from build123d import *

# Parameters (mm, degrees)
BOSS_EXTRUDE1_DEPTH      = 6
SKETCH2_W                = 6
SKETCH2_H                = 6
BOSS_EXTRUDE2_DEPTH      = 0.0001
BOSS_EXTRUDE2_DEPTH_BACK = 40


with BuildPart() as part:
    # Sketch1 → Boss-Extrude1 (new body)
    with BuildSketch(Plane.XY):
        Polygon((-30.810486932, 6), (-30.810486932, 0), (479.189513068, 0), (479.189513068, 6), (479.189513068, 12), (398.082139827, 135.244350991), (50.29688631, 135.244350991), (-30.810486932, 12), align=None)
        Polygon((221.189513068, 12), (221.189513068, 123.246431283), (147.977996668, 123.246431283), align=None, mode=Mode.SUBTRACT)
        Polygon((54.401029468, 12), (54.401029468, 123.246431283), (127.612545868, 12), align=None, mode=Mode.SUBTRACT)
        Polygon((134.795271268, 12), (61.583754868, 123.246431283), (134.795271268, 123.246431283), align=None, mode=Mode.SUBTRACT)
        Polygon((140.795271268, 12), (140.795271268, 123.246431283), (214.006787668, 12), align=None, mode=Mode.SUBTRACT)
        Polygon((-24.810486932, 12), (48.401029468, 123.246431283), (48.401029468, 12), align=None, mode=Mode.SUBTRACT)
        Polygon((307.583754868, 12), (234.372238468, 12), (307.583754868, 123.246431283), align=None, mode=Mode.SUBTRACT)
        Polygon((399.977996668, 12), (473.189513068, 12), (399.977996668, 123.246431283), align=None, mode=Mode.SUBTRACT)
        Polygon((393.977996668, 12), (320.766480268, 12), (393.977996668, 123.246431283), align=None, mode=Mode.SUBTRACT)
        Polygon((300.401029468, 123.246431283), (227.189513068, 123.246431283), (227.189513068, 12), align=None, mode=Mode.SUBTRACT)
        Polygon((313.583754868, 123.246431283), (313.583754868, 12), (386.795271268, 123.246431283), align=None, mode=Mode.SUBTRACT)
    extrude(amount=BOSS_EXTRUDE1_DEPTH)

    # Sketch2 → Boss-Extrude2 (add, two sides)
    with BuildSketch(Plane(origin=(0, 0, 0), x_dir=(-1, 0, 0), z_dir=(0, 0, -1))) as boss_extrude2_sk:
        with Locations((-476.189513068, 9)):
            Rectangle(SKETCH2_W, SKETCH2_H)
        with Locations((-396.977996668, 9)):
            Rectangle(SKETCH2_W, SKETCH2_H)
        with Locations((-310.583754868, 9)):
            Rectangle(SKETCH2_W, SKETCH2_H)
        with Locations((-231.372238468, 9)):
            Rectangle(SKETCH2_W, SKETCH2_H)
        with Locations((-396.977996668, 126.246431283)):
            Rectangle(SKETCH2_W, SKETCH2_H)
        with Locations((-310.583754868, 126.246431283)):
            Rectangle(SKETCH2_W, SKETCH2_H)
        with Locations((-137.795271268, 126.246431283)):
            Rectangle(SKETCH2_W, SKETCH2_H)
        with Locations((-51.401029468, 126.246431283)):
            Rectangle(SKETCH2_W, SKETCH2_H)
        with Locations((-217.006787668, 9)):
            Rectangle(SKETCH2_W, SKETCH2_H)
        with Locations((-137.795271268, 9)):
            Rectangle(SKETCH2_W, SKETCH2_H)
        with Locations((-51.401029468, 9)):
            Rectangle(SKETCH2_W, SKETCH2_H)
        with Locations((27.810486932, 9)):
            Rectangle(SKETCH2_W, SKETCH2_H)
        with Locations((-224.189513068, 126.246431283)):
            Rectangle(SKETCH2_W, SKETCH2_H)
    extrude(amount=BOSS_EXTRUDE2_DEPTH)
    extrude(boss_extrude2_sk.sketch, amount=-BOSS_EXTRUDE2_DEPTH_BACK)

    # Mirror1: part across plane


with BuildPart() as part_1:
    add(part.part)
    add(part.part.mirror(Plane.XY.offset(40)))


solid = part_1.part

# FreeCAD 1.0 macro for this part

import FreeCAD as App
import Part
import Sketcher
from FreeCAD import Vector
Q = App.Units.Quantity

doc = App.newDocument("Part")
body = doc.addObject("PartDesign::Body", "Body")

# Sketch on XY plane
sketch1 = body.newObject("Sketcher::SketchObject", "Sketch")
sketch1.AttachmentSupport = (doc.getObject("XY_Plane"), [""])
sketch1.MapMode = "FlatFace"
sketch1.addGeometry([
    Part.LineSegment(Vector(-31, 0, 0), Vector(479, 0, 0)),  # 0
    Part.LineSegment(Vector(479, 0, 0), Vector(479, 12, 0)),  # 1
    Part.LineSegment(Vector(479, 12, 0), Vector(398, 135, 0)),  # 2
    Part.LineSegment(Vector(398, 135, 0), Vector(50, 135, 0)),  # 3
    Part.LineSegment(Vector(50, 135, 0), Vector(-31, 12, 0)),  # 4
    Part.LineSegment(Vector(-31, 12, 0), Vector(-31, 0, 0)),  # 5
    Part.LineSegment(Vector(48, 12, 0), Vector(-25, 12, 0)),  # 6
    Part.LineSegment(Vector(-25, 12, 0), Vector(48, 123, 0)),  # 7
    Part.LineSegment(Vector(48, 123, 0), Vector(48, 12, 0)),  # 8
    Part.LineSegment(Vector(128, 12, 0), Vector(54, 12, 0)),  # 9
    Part.LineSegment(Vector(54, 12, 0), Vector(54, 123, 0)),  # 10
    Part.LineSegment(Vector(54, 123, 0), Vector(128, 12, 0)),  # 11
    Part.LineSegment(Vector(135, 123, 0), Vector(135, 12, 0)),  # 12
    Part.LineSegment(Vector(135, 12, 0), Vector(62, 123, 0)),  # 13
    Part.LineSegment(Vector(62, 123, 0), Vector(135, 123, 0)),  # 14
    Part.LineSegment(Vector(214, 12, 0), Vector(141, 12, 0)),  # 15
    Part.LineSegment(Vector(141, 12, 0), Vector(141, 123, 0)),  # 16
    Part.LineSegment(Vector(141, 123, 0), Vector(214, 12, 0)),  # 17
    Part.LineSegment(Vector(221, 123, 0), Vector(221, 12, 0)),  # 18
    Part.LineSegment(Vector(221, 12, 0), Vector(148, 123, 0)),  # 19
    Part.LineSegment(Vector(148, 123, 0), Vector(221, 123, 0)),  # 20
    Part.LineSegment(Vector(227, 123, 0), Vector(300, 123, 0)),  # 21
    Part.LineSegment(Vector(300, 123, 0), Vector(227, 12, 0)),  # 22
    Part.LineSegment(Vector(227, 12, 0), Vector(227, 123, 0)),  # 23
    Part.LineSegment(Vector(314, 12, 0), Vector(314, 123, 0)),  # 24
    Part.LineSegment(Vector(314, 123, 0), Vector(387, 123, 0)),  # 25
    Part.LineSegment(Vector(387, 123, 0), Vector(314, 12, 0)),  # 26
    Part.LineSegment(Vector(394, 123, 0), Vector(394, 12, 0)),  # 27
    Part.LineSegment(Vector(394, 12, 0), Vector(321, 12, 0)),  # 28
    Part.LineSegment(Vector(321, 12, 0), Vector(394, 123, 0)),  # 29
    Part.LineSegment(Vector(473, 12, 0), Vector(400, 12, 0)),  # 30
    Part.LineSegment(Vector(400, 12, 0), Vector(400, 123, 0)),  # 31
    Part.LineSegment(Vector(400, 123, 0), Vector(473, 12, 0)),  # 32
    Part.LineSegment(Vector(308, 123, 0), Vector(308, 12, 0)),  # 33
    Part.LineSegment(Vector(308, 12, 0), Vector(234, 12, 0)),  # 34
    Part.LineSegment(Vector(234, 12, 0), Vector(308, 123, 0)),  # 35
], False)
sketch1.addConstraint([
    Sketcher.Constraint("Coincident", 0, 2, 1, 1),
    Sketcher.Constraint("Coincident", 1, 2, 2, 1),
    Sketcher.Constraint("Coincident", 2, 2, 3, 1),
    Sketcher.Constraint("Coincident", 3, 2, 4, 1),
    Sketcher.Constraint("Coincident", 4, 2, 5, 1),
    Sketcher.Constraint("Coincident", 5, 2, 0, 1),
    Sketcher.Constraint("Coincident", 6, 2, 7, 1),
    Sketcher.Constraint("Coincident", 7, 2, 8, 1),
    Sketcher.Constraint("Coincident", 8, 2, 6, 1),
    Sketcher.Constraint("Coincident", 9, 2, 10, 1),
    Sketcher.Constraint("Coincident", 10, 2, 11, 1),
    Sketcher.Constraint("Coincident", 11, 2, 9, 1),
    Sketcher.Constraint("Coincident", 12, 2, 13, 1),
    Sketcher.Constraint("Coincident", 13, 2, 14, 1),
    Sketcher.Constraint("Coincident", 14, 2, 12, 1),
    Sketcher.Constraint("Coincident", 15, 2, 16, 1),
    Sketcher.Constraint("Coincident", 16, 2, 17, 1),
    Sketcher.Constraint("Coincident", 17, 2, 15, 1),
    Sketcher.Constraint("Coincident", 18, 2, 19, 1),
    Sketcher.Constraint("Coincident", 19, 2, 20, 1),
    Sketcher.Constraint("Coincident", 20, 2, 18, 1),
    Sketcher.Constraint("Coincident", 21, 2, 22, 1),
    Sketcher.Constraint("Coincident", 22, 2, 23, 1),
    Sketcher.Constraint("Coincident", 23, 2, 21, 1),
    Sketcher.Constraint("Coincident", 24, 2, 25, 1),
    Sketcher.Constraint("Coincident", 25, 2, 26, 1),
    Sketcher.Constraint("Coincident", 26, 2, 24, 1),
    Sketcher.Constraint("Coincident", 27, 2, 28, 1),
    Sketcher.Constraint("Coincident", 28, 2, 29, 1),
    Sketcher.Constraint("Coincident", 29, 2, 27, 1),
    Sketcher.Constraint("Coincident", 30, 2, 31, 1),
    Sketcher.Constraint("Coincident", 31, 2, 32, 1),
    Sketcher.Constraint("Coincident", 32, 2, 30, 1),
    Sketcher.Constraint("Coincident", 33, 2, 34, 1),
    Sketcher.Constraint("Coincident", 34, 2, 35, 1),
    Sketcher.Constraint("Coincident", 35, 2, 33, 1),
    Sketcher.Constraint("Horizontal", 0),
    Sketcher.Constraint("Vertical", 1),
    Sketcher.Constraint("Horizontal", 3),
    Sketcher.Constraint("Vertical", 5),
    Sketcher.Constraint("Horizontal", 6),
    Sketcher.Constraint("Vertical", 8),
    Sketcher.Constraint("Horizontal", 9),
    Sketcher.Constraint("Vertical", 10),
    Sketcher.Constraint("Vertical", 12),
    Sketcher.Constraint("Horizontal", 14),
    Sketcher.Constraint("Horizontal", 15),
    Sketcher.Constraint("Vertical", 16),
    Sketcher.Constraint("Vertical", 18),
    Sketcher.Constraint("Horizontal", 20),
    Sketcher.Constraint("Horizontal", 21),
    Sketcher.Constraint("Vertical", 23),
    Sketcher.Constraint("Vertical", 24),
    Sketcher.Constraint("Horizontal", 25),
    Sketcher.Constraint("Vertical", 27),
    Sketcher.Constraint("Horizontal", 28),
    Sketcher.Constraint("Horizontal", 30),
    Sketcher.Constraint("Vertical", 31),
    Sketcher.Constraint("Vertical", 33),
    Sketcher.Constraint("Horizontal", 34),
    Sketcher.Constraint("PointOnObject", 0, 2, -1),
    Sketcher.Constraint("Parallel", 4, 7),
    Sketcher.Constraint("Parallel", 2, 11),
    Sketcher.Constraint("Parallel", 11, 13),
    Sketcher.Constraint("Parallel", 13, 17),
    Sketcher.Constraint("Parallel", 17, 19),
    Sketcher.Constraint("Parallel", 7, 22),
    Sketcher.Constraint("Parallel", 22, 26),
    Sketcher.Constraint("Parallel", 26, 29),
    Sketcher.Constraint("Parallel", 19, 32),
    Sketcher.Constraint("Parallel", 29, 35),
    Sketcher.Constraint("Horizontal", 1, 2, 4, 2),
    Sketcher.Constraint("Horizontal", 4, 2, 6, 2),
    Sketcher.Constraint("Horizontal", 8, 2, 9, 2),
    Sketcher.Constraint("Horizontal", 7, 2, 10, 2),
    Sketcher.Constraint("Horizontal", 11, 2, 12, 2),
    Sketcher.Constraint("Horizontal", 10, 2, 13, 2),
    Sketcher.Constraint("Horizontal", 12, 2, 15, 2),
    Sketcher.Constraint("Horizontal", 14, 2, 16, 2),
    Sketcher.Constraint("Horizontal", 17, 2, 18, 2),
    Sketcher.Constraint("Horizontal", 16, 2, 19, 2),
    Sketcher.Constraint("Horizontal", 20, 2, 21, 2),
    Sketcher.Constraint("Horizontal", 18, 2, 22, 2),
    Sketcher.Constraint("Horizontal", 23, 2, 24, 2),
    Sketcher.Constraint("Horizontal", 22, 2, 26, 2),
    Sketcher.Constraint("Horizontal", 26, 2, 27, 2),
    Sketcher.Constraint("Horizontal", 25, 2, 29, 2),
    Sketcher.Constraint("Horizontal", 28, 2, 30, 2),
    Sketcher.Constraint("Horizontal", 29, 2, 31, 2),
    Sketcher.Constraint("Horizontal", 32, 2, 33, 2),
    Sketcher.Constraint("Horizontal", 31, 2, 35, 2),
    Sketcher.Constraint("Equal", 6, 9),
    Sketcher.Constraint("DistanceX", 0, 1, 0, 2, Q("510 mm")),
    Sketcher.Constraint("DistanceY", 1, 1, 1, 2, Q("12 mm")),
    Sketcher.Constraint("DistanceX", 4, 2, 6, 2, Q("6 mm")),
    Sketcher.Constraint("DistanceX", 8, 2, 9, 2, Q("6 mm")),
    Sketcher.Constraint("DistanceX", 12, 2, 15, 2, Q("6 mm")),
    Sketcher.Constraint("DistanceX", 18, 2, 22, 2, Q("6 mm")),
    Sketcher.Constraint("DistanceX", 27, 2, 30, 2, Q("6 mm")),
    Sketcher.Constraint("DistanceX", 32, 2, 1, 2, Q("6 mm")),
    Sketcher.Constraint("DistanceX", 33, 2, 26, 2, Q("6 mm")),
    Sketcher.Constraint("DistanceY", 8, 2, 8, 1, Q("111.246431 mm")),
    Sketcher.Constraint("Distance", 2, Q("147.538388 mm")),
    Sketcher.Constraint("DistanceX", 3, 2, 3, 1, Q("347.785254 mm")),
    Sketcher.Constraint("DistanceX", -1, 1, 2, 2, Q("398.08214 mm")),
    Sketcher.Constraint("DistanceX", -1, 1, 12, 2, Q("134.795271 mm")),
    Sketcher.Constraint("DistanceX", -1, 1, 21, 2, Q("300.401029 mm")),
    Sketcher.Constraint("DistanceX", -1, 1, 25, 2, Q("386.795271 mm")),
])
pad1 = body.newObject("PartDesign::Pad", "Pad")
pad1.Profile = sketch1
pad1.Length = 6

# Sketch on XY plane
sketch2 = body.newObject("Sketcher::SketchObject", "Sketch001")
sketch2.AttachmentSupport = (doc.getObject("XY_Plane"), [""])
sketch2.MapMode = "FlatFace"
sketch2.addGeometry([
    Part.LineSegment(Vector(479, 12, 0), Vector(479, 6, 0)),  # 0
    Part.LineSegment(Vector(479, 6, 0), Vector(473, 6, 0)),  # 1
    Part.LineSegment(Vector(473, 6, 0), Vector(473, 12, 0)),  # 2
    Part.LineSegment(Vector(473, 12, 0), Vector(479, 12, 0)),  # 3
    Part.LineSegment(Vector(400, 12, 0), Vector(400, 6, 0)),  # 4
    Part.LineSegment(Vector(400, 6, 0), Vector(394, 6, 0)),  # 5
    Part.LineSegment(Vector(394, 6, 0), Vector(394, 12, 0)),  # 6
    Part.LineSegment(Vector(394, 12, 0), Vector(400, 12, 0)),  # 7
    Part.LineSegment(Vector(314, 12, 0), Vector(314, 6, 0)),  # 8
    Part.LineSegment(Vector(314, 6, 0), Vector(308, 6, 0)),  # 9
    Part.LineSegment(Vector(308, 6, 0), Vector(308, 12, 0)),  # 10
    Part.LineSegment(Vector(308, 12, 0), Vector(314, 12, 0)),  # 11
    Part.LineSegment(Vector(234, 12, 0), Vector(234, 6, 0)),  # 12
    Part.LineSegment(Vector(234, 6, 0), Vector(228, 6, 0)),  # 13
    Part.LineSegment(Vector(228, 6, 0), Vector(228, 12, 0)),  # 14
    Part.LineSegment(Vector(228, 12, 0), Vector(234, 12, 0)),  # 15
    Part.LineSegment(Vector(400, 129, 0), Vector(400, 123, 0)),  # 16
    Part.LineSegment(Vector(400, 123, 0), Vector(394, 123, 0)),  # 17
    Part.LineSegment(Vector(394, 123, 0), Vector(394, 129, 0)),  # 18
    Part.LineSegment(Vector(394, 129, 0), Vector(400, 129, 0)),  # 19
    Part.LineSegment(Vector(314, 129, 0), Vector(314, 123, 0)),  # 20
    Part.LineSegment(Vector(314, 123, 0), Vector(308, 123, 0)),  # 21
    Part.LineSegment(Vector(308, 123, 0), Vector(308, 129, 0)),  # 22
    Part.LineSegment(Vector(308, 129, 0), Vector(314, 129, 0)),  # 23
    Part.LineSegment(Vector(141, 129, 0), Vector(141, 123, 0)),  # 24
    Part.LineSegment(Vector(141, 123, 0), Vector(135, 123, 0)),  # 25
    Part.LineSegment(Vector(135, 123, 0), Vector(135, 129, 0)),  # 26
    Part.LineSegment(Vector(135, 129, 0), Vector(141, 129, 0)),  # 27
    Part.LineSegment(Vector(54, 129, 0), Vector(54, 123, 0)),  # 28
    Part.LineSegment(Vector(54, 123, 0), Vector(48, 123, 0)),  # 29
    Part.LineSegment(Vector(48, 123, 0), Vector(48, 129, 0)),  # 30
    Part.LineSegment(Vector(48, 129, 0), Vector(54, 129, 0)),  # 31
    Part.LineSegment(Vector(220, 12, 0), Vector(220, 6, 0)),  # 32
    Part.LineSegment(Vector(220, 6, 0), Vector(214, 6, 0)),  # 33
    Part.LineSegment(Vector(214, 6, 0), Vector(214, 12, 0)),  # 34
    Part.LineSegment(Vector(214, 12, 0), Vector(220, 12, 0)),  # 35
    Part.LineSegment(Vector(141, 12, 0), Vector(141, 6, 0)),  # 36
    Part.LineSegment(Vector(141, 6, 0), Vector(135, 6, 0)),  # 37
    Part.LineSegment(Vector(135, 6, 0), Vector(135, 12, 0)),  # 38
    Part.LineSegment(Vector(135, 12, 0), Vector(141, 12, 0)),  # 39
    Part.LineSegment(Vector(54, 12, 0), Vector(54, 6, 0)),  # 40
    Part.LineSegment(Vector(54, 6, 0), Vector(48, 6, 0)),  # 41
    Part.LineSegment(Vector(48, 6, 0), Vector(48, 12, 0)),  # 42
    Part.LineSegment(Vector(48, 12, 0), Vector(54, 12, 0)),  # 43
    Part.LineSegment(Vector(-25, 12, 0), Vector(-25, 6, 0)),  # 44
    Part.LineSegment(Vector(-25, 6, 0), Vector(-31, 6, 0)),  # 45
    Part.LineSegment(Vector(-31, 6, 0), Vector(-31, 12, 0)),  # 46
    Part.LineSegment(Vector(-31, 12, 0), Vector(-25, 12, 0)),  # 47
    Part.LineSegment(Vector(227, 129, 0), Vector(227, 123, 0)),  # 48
    Part.LineSegment(Vector(227, 123, 0), Vector(221, 123, 0)),  # 49
    Part.LineSegment(Vector(221, 123, 0), Vector(221, 129, 0)),  # 50
    Part.LineSegment(Vector(221, 129, 0), Vector(227, 129, 0)),  # 51
], False)
sketch2.addConstraint([
    Sketcher.Constraint("Coincident", 0, 2, 1, 1),
    Sketcher.Constraint("Coincident", 1, 2, 2, 1),
    Sketcher.Constraint("Coincident", 2, 2, 3, 1),
    Sketcher.Constraint("Coincident", 3, 2, 0, 1),
    Sketcher.Constraint("Coincident", 4, 2, 5, 1),
    Sketcher.Constraint("Coincident", 5, 2, 6, 1),
    Sketcher.Constraint("Coincident", 6, 2, 7, 1),
    Sketcher.Constraint("Coincident", 7, 2, 4, 1),
    Sketcher.Constraint("Coincident", 8, 2, 9, 1),
    Sketcher.Constraint("Coincident", 9, 2, 10, 1),
    Sketcher.Constraint("Coincident", 10, 2, 11, 1),
    Sketcher.Constraint("Coincident", 11, 2, 8, 1),
    Sketcher.Constraint("Coincident", 12, 2, 13, 1),
    Sketcher.Constraint("Coincident", 13, 2, 14, 1),
    Sketcher.Constraint("Coincident", 14, 2, 15, 1),
    Sketcher.Constraint("Coincident", 15, 2, 12, 1),
    Sketcher.Constraint("Coincident", 16, 2, 17, 1),
    Sketcher.Constraint("Coincident", 17, 2, 18, 1),
    Sketcher.Constraint("Coincident", 18, 2, 19, 1),
    Sketcher.Constraint("Coincident", 19, 2, 16, 1),
    Sketcher.Constraint("Coincident", 20, 2, 21, 1),
    Sketcher.Constraint("Coincident", 21, 2, 22, 1),
    Sketcher.Constraint("Coincident", 22, 2, 23, 1),
    Sketcher.Constraint("Coincident", 23, 2, 20, 1),
    Sketcher.Constraint("Coincident", 24, 2, 25, 1),
    Sketcher.Constraint("Coincident", 25, 2, 26, 1),
    Sketcher.Constraint("Coincident", 26, 2, 27, 1),
    Sketcher.Constraint("Coincident", 27, 2, 24, 1),
    Sketcher.Constraint("Coincident", 28, 2, 29, 1),
    Sketcher.Constraint("Coincident", 29, 2, 30, 1),
    Sketcher.Constraint("Coincident", 30, 2, 31, 1),
    Sketcher.Constraint("Coincident", 31, 2, 28, 1),
    Sketcher.Constraint("Coincident", 32, 2, 33, 1),
    Sketcher.Constraint("Coincident", 33, 2, 34, 1),
    Sketcher.Constraint("Coincident", 34, 2, 35, 1),
    Sketcher.Constraint("Coincident", 35, 2, 32, 1),
    Sketcher.Constraint("Coincident", 36, 2, 37, 1),
    Sketcher.Constraint("Coincident", 37, 2, 38, 1),
    Sketcher.Constraint("Coincident", 38, 2, 39, 1),
    Sketcher.Constraint("Coincident", 39, 2, 36, 1),
    Sketcher.Constraint("Coincident", 40, 2, 41, 1),
    Sketcher.Constraint("Coincident", 41, 2, 42, 1),
    Sketcher.Constraint("Coincident", 42, 2, 43, 1),
    Sketcher.Constraint("Coincident", 43, 2, 40, 1),
    Sketcher.Constraint("Coincident", 44, 2, 45, 1),
    Sketcher.Constraint("Coincident", 45, 2, 46, 1),
    Sketcher.Constraint("Coincident", 46, 2, 47, 1),
    Sketcher.Constraint("Coincident", 47, 2, 44, 1),
    Sketcher.Constraint("Coincident", 48, 2, 49, 1),
    Sketcher.Constraint("Coincident", 49, 2, 50, 1),
    Sketcher.Constraint("Coincident", 50, 2, 51, 1),
    Sketcher.Constraint("Coincident", 51, 2, 48, 1),
    Sketcher.Constraint("Vertical", 0),
    Sketcher.Constraint("Horizontal", 1),
    Sketcher.Constraint("Vertical", 2),
    Sketcher.Constraint("Horizontal", 3),
    Sketcher.Constraint("Vertical", 4),
    Sketcher.Constraint("Horizontal", 5),
    Sketcher.Constraint("Vertical", 6),
    Sketcher.Constraint("Horizontal", 7),
    Sketcher.Constraint("Vertical", 8),
    Sketcher.Constraint("Horizontal", 9),
    Sketcher.Constraint("Vertical", 10),
    Sketcher.Constraint("Horizontal", 11),
    Sketcher.Constraint("Vertical", 12),
    Sketcher.Constraint("Horizontal", 13),
    Sketcher.Constraint("Vertical", 14),
    Sketcher.Constraint("Horizontal", 15),
    Sketcher.Constraint("Vertical", 16),
    Sketcher.Constraint("Horizontal", 17),
    Sketcher.Constraint("Vertical", 18),
    Sketcher.Constraint("Horizontal", 19),
    Sketcher.Constraint("Vertical", 20),
    Sketcher.Constraint("Horizontal", 21),
    Sketcher.Constraint("Vertical", 22),
    Sketcher.Constraint("Horizontal", 23),
    Sketcher.Constraint("Vertical", 24),
    Sketcher.Constraint("Horizontal", 25),
    Sketcher.Constraint("Vertical", 26),
    Sketcher.Constraint("Horizontal", 27),
    Sketcher.Constraint("Vertical", 28),
    Sketcher.Constraint("Horizontal", 29),
    Sketcher.Constraint("Vertical", 30),
    Sketcher.Constraint("Horizontal", 31),
    Sketcher.Constraint("Vertical", 32),
    Sketcher.Constraint("Horizontal", 33),
    Sketcher.Constraint("Vertical", 34),
    Sketcher.Constraint("Horizontal", 35),
    Sketcher.Constraint("Vertical", 36),
    Sketcher.Constraint("Horizontal", 37),
    Sketcher.Constraint("Vertical", 38),
    Sketcher.Constraint("Horizontal", 39),
    Sketcher.Constraint("Vertical", 40),
    Sketcher.Constraint("Horizontal", 41),
    Sketcher.Constraint("Vertical", 42),
    Sketcher.Constraint("Horizontal", 43),
    Sketcher.Constraint("Vertical", 44),
    Sketcher.Constraint("Horizontal", 45),
    Sketcher.Constraint("Vertical", 46),
    Sketcher.Constraint("Horizontal", 47),
    Sketcher.Constraint("Vertical", 48),
    Sketcher.Constraint("Horizontal", 49),
    Sketcher.Constraint("Vertical", 50),
    Sketcher.Constraint("Horizontal", 51),
    Sketcher.Constraint("Horizontal", 1, 2, 4, 2),
    Sketcher.Constraint("Horizontal", 3, 2, 6, 2),
    Sketcher.Constraint("Horizontal", 5, 2, 8, 2),
    Sketcher.Constraint("Horizontal", 7, 2, 10, 2),
    Sketcher.Constraint("Horizontal", 9, 2, 12, 2),
    Sketcher.Constraint("Horizontal", 11, 2, 14, 2),
    Sketcher.Constraint("Horizontal", 17, 2, 20, 2),
    Sketcher.Constraint("Horizontal", 19, 2, 22, 2),
    Sketcher.Constraint("Horizontal", 21, 2, 24, 2),
    Sketcher.Constraint("Horizontal", 23, 2, 26, 2),
    Sketcher.Constraint("Horizontal", 25, 2, 28, 2),
    Sketcher.Constraint("Horizontal", 27, 2, 30, 2),
    Sketcher.Constraint("Horizontal", 13, 2, 32, 2),
    Sketcher.Constraint("Horizontal", 15, 2, 34, 2),
    Sketcher.Constraint("Horizontal", 33, 2, 36, 2),
    Sketcher.Constraint("Horizontal", 35, 2, 38, 2),
    Sketcher.Constraint("Horizontal", 37, 2, 40, 2),
    Sketcher.Constraint("Horizontal", 39, 2, 42, 2),
    Sketcher.Constraint("Horizontal", 41, 2, 44, 2),
    Sketcher.Constraint("Horizontal", 43, 2, 46, 2),
    Sketcher.Constraint("Horizontal", 29, 2, 48, 2),
    Sketcher.Constraint("Horizontal", 31, 2, 50, 2),
    Sketcher.Constraint("Vertical", 7, 2, 16, 2),
    Sketcher.Constraint("Vertical", 6, 2, 17, 2),
    Sketcher.Constraint("Vertical", 11, 2, 20, 2),
    Sketcher.Constraint("Vertical", 10, 2, 21, 2),
    Sketcher.Constraint("Vertical", 27, 2, 36, 2),
    Sketcher.Constraint("Vertical", 26, 2, 37, 2),
    Sketcher.Constraint("Vertical", 31, 2, 40, 2),
    Sketcher.Constraint("Vertical", 30, 2, 41, 2),
    Sketcher.Constraint("Equal", 3, 5),
    Sketcher.Constraint("Equal", 7, 9),
    Sketcher.Constraint("Equal", 11, 13),
    Sketcher.Constraint("Equal", 23, 25),
    Sketcher.Constraint("Equal", 27, 29),
    Sketcher.Constraint("Equal", 31, 33),
    Sketcher.Constraint("Equal", 43, 45),
    Sketcher.Constraint("Equal", 47, 49),
    Sketcher.Constraint("Equal", 51, 0),
    Sketcher.Constraint("Equal", 14, 16),
    Sketcher.Constraint("DistanceX", 1, 2, 1, 1, Q("6 mm")),
    Sketcher.Constraint("DistanceY", -1, 1, 0, 2, Q("6 mm")),
    Sketcher.Constraint("DistanceX", -1, 1, 12, 2, Q("234.372238 mm")),
    Sketcher.Constraint("DistanceY", -1, 1, 16, 2, Q("123.246431 mm")),
    Sketcher.Constraint("DistanceX", -1, 1, 24, 2, Q("140.795271 mm")),
    Sketcher.Constraint("DistanceX", -1, 1, 28, 2, Q("54.401029 mm")),
    Sketcher.Constraint("DistanceX", 8, 2, 5, 2, Q("80.394242 mm")),
    Sketcher.Constraint("DistanceX", 8, 2, 1, 2, Q("159.605758 mm")),
    Sketcher.Constraint("DistanceX", 12, 2, 5, 2, Q("159.605758 mm")),
    Sketcher.Constraint("DistanceX", 32, 2, 13, 2, Q("8.365451 mm")),
    Sketcher.Constraint("DistanceX", 48, 2, 21, 2, Q("80.394242 mm")),
    Sketcher.Constraint("DistanceX", 44, 2, -1, 1, Q("24.810487 mm")),
])
pad2 = body.newObject("PartDesign::Pad", "Pad001")
pad2.Profile = sketch2
pad2.Type = "TwoLengths"
pad2.Length = 0.0001
pad2.Length2 = 40
pad2.Reversed = True
body2 = doc.addObject("PartDesign::Body", "Body001")
doc.recompute()

body2.BaseFeature = body
doc.recompute()

mirroring = doc.addObject("Part::Mirroring", "Mirroring")
mirroring.Source = body
mirroring.Base = Vector(0, 0, 40)
mirroring.Normal = Vector(0, 0, 1)
body3 = doc.addObject("PartDesign::Body", "Body002")
body3.BaseFeature = mirroring
boolean = body2.newObject("PartDesign::Boolean", "Boolean")
boolean.Type = "Fuse"
boolean.addObjects([body3])
doc.recompute()
mirroring.Visibility = False

doc.recompute()
